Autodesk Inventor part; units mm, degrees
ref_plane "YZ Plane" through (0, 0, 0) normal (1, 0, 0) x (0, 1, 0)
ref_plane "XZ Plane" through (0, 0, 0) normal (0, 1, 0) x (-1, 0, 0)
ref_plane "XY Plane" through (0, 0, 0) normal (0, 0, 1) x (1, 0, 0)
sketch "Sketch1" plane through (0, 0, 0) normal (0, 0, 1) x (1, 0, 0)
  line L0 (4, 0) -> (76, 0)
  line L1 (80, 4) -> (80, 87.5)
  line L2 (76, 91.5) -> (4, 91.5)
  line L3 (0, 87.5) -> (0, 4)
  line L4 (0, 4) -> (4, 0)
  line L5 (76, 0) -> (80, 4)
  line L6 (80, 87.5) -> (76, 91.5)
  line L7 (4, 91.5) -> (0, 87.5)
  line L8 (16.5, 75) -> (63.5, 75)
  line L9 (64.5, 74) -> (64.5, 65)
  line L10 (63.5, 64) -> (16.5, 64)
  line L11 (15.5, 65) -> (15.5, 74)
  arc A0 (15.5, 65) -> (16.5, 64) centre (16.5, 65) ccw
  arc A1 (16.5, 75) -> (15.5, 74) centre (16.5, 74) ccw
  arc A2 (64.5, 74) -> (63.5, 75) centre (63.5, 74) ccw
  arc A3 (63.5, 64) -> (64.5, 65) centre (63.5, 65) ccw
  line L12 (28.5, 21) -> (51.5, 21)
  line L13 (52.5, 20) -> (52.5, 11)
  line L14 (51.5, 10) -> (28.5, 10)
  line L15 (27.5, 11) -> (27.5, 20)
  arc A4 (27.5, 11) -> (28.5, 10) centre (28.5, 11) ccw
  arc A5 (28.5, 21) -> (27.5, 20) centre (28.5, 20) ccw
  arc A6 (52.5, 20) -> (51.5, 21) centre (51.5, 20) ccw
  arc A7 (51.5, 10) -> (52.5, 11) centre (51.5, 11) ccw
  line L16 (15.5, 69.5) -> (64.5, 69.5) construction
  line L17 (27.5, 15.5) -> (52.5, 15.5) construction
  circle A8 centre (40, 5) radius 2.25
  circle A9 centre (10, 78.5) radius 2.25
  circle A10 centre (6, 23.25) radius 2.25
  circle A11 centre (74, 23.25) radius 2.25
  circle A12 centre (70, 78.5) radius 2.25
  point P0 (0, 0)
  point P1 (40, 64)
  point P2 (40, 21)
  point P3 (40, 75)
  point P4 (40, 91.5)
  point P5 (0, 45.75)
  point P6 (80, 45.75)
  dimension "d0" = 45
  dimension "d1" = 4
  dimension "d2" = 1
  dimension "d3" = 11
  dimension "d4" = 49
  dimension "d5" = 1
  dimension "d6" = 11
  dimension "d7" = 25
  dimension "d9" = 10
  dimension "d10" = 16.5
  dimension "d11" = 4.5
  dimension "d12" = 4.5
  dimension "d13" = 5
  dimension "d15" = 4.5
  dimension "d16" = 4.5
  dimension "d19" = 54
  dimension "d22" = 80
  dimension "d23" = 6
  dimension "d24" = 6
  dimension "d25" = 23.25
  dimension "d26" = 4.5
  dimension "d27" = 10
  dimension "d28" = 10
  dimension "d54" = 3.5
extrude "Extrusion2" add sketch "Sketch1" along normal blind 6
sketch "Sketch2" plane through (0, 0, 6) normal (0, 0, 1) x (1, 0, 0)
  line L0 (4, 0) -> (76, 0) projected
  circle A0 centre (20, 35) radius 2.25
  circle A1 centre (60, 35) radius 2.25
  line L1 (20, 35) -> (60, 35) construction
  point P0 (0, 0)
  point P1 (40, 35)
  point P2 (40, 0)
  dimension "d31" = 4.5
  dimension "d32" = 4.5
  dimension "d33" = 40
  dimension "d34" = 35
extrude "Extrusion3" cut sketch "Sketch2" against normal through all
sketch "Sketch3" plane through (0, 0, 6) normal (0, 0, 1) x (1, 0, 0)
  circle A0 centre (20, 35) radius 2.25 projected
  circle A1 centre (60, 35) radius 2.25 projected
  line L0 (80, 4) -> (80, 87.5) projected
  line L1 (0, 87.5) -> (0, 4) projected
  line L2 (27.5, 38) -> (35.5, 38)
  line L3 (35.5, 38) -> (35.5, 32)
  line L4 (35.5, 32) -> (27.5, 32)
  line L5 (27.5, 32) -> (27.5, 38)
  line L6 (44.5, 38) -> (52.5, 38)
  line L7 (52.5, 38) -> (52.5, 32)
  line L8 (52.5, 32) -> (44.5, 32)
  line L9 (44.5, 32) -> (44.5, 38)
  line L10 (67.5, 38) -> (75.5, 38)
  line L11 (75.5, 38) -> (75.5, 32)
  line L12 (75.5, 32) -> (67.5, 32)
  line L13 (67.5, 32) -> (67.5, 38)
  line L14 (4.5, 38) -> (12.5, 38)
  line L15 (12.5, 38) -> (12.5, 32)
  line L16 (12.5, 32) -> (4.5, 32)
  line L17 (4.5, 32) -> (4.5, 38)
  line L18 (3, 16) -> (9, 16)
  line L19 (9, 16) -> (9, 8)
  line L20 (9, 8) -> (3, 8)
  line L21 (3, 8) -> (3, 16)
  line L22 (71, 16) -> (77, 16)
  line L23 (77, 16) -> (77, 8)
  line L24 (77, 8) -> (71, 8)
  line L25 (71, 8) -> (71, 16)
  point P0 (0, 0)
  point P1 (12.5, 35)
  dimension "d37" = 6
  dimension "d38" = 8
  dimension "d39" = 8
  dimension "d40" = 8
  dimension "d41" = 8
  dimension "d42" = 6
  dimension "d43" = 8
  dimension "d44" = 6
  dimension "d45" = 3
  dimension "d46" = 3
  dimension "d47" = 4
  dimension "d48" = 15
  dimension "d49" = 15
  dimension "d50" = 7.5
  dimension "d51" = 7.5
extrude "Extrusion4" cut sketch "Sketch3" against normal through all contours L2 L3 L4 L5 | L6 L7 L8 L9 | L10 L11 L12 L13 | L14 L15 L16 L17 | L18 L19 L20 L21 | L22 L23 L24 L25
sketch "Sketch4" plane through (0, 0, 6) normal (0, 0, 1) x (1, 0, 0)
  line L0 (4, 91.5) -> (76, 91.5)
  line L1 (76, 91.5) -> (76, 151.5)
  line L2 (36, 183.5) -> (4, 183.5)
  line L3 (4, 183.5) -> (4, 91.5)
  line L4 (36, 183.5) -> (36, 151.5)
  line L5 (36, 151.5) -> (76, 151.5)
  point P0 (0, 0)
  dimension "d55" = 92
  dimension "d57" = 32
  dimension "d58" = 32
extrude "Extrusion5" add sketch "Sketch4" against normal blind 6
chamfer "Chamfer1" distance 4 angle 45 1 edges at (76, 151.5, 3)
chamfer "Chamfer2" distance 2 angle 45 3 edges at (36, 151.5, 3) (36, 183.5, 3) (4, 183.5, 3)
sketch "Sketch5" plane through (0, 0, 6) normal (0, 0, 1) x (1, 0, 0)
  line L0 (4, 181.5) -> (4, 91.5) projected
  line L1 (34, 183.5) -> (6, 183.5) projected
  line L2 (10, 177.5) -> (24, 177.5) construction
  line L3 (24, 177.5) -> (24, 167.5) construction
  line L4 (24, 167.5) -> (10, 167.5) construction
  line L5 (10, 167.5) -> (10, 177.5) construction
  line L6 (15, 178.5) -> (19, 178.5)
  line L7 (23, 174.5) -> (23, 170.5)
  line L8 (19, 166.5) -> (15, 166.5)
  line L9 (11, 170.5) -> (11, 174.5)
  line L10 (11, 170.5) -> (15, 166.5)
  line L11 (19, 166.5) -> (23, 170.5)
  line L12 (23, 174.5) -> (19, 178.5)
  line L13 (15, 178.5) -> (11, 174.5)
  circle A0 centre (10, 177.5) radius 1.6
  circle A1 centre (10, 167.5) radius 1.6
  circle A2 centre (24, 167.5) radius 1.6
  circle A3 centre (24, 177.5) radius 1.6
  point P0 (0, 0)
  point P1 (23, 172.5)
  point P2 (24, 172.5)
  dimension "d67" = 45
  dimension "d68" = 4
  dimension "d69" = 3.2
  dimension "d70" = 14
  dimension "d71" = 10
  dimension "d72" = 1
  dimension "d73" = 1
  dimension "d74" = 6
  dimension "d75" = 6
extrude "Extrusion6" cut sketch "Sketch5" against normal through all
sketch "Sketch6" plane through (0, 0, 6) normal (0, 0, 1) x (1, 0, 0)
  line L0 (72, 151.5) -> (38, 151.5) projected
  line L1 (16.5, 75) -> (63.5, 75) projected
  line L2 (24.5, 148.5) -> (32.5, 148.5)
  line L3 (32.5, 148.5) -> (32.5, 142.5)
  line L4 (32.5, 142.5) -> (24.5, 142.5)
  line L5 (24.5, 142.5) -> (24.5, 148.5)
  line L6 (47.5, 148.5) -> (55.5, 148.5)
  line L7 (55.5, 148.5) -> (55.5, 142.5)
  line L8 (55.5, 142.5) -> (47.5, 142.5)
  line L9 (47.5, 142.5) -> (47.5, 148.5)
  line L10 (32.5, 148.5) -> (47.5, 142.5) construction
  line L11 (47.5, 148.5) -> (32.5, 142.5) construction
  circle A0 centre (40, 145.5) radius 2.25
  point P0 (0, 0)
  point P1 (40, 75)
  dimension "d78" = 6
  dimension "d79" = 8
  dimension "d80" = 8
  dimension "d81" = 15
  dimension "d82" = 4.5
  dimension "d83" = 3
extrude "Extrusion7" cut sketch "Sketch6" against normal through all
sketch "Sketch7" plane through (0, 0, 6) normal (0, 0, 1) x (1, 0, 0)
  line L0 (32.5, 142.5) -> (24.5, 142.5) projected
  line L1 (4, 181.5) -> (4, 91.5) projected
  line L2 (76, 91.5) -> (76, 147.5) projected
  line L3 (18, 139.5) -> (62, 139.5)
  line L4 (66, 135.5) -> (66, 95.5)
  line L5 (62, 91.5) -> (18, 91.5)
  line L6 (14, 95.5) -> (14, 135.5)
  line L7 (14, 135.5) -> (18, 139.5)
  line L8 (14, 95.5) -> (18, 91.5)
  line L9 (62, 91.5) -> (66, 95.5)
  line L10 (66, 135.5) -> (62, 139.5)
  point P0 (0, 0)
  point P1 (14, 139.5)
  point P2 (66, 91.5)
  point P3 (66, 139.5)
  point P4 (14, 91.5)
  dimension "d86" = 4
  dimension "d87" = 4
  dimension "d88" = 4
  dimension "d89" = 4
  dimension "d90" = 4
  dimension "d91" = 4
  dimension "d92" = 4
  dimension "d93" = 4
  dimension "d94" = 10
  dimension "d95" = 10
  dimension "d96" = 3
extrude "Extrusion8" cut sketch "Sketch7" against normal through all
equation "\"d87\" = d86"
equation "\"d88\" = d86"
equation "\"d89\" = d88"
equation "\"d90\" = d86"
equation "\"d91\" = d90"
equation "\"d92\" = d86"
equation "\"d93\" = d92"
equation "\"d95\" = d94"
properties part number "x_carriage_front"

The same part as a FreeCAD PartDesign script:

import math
import FreeCAD as App
import Part
import Sketcher
from FreeCAD import Vector
Q = App.Units.Quantity


def edges_at(feature, points):
    """Names of the edges that pass closest to the given points."""
    edges = feature.Shape.Edges
    near = lambda p: min(range(len(edges)), key=lambda i: edges[i].distToShape(Part.Vertex(*p))[0])
    return sorted({f"Edge{near(p) + 1}" for p in points})


def add_polygon(sketch, points):
    """Adds a closed chain of lines whose ends are joined by coincident constraints."""
    first, n = sketch.GeometryCount, len(points)
    for a, b in zip(points, points[1:] + points[:1]):
        sketch.addGeometry(Part.LineSegment(App.Vector(*a, 0), App.Vector(*b, 0)), False)
    for i in range(n):
        sketch.addConstraint(Sketcher.Constraint("Coincident", first + i, 2, first + (i + 1) % n, 1))

doc = App.newDocument("Part")
params = doc.addObject("Spreadsheet::Sheet", "Params")
for row, (alias, value) in enumerate([
    ("sketch1_radius", "1 mm"),
    ("sketch1_diameter", "4.5 mm"),
    ("sketch1_width", "23 mm"),
    ("pad1_length", "6 mm"),
    ("sketch2_diameter", "4.5 mm"),
    ("sketch3_width", "8 mm"),
    ("sketch3_width2", "6 mm"),
    ("sketch4_width", "32 mm"),
    ("sketch4_height", "92 mm"),
    ("sketch4_width2", "72 mm"),
    ("pad2_length", "6 mm"),
    ("chamfer_size", "4 mm"),
    ("chamfer2_size", "2 mm"),
    ("sketch5_diameter", "3.2 mm"),
    ("sketch5_width", "4 mm"),
    ("sketch6_diameter", "4.5 mm"),
    ("sketch6_width", "8 mm"),
    ("sketch6_height", "6 mm"),
    ("sketch7_width", "44 mm"),
    ("sketch7_height", "40 mm"),
], start=1):
    params.set(f"A{row}", alias)
    params.set(f"B{row}", "=" + value)
    params.setAlias(f"B{row}", alias)

body = doc.addObject("PartDesign::Body", "Body")

# Sketch on XY plane
sketch1 = doc.addObject("Sketcher::SketchObject", "Sketch")
body.addObject(sketch1)
sketch1.AttachmentSupport = (doc.XY_Plane, [""])
sketch1.MapMode = "FlatFace"
add_polygon(sketch1, [(0, 4), (4, 0), (76, 0), (80, 4), (80, 87.5), (76, 91.5), (4, 91.5), (0, 87.5)])  # lines 0-7
sketch1.addGeometry(Part.Circle(Vector(6, 23.2, 0), Vector(0, 0, 1), 2.2), False)  # 8
sketch1.addGeometry(Part.Circle(Vector(40, 5, 0), Vector(0, 0, 1), 2.2), False)  # 9
sketch1.addGeometry(Part.ArcOfCircle(Part.Circle(Vector(28.5, 20, 0), Vector(0, 0, 1), 1), math.radians(90), math.radians(180)), False)  # 10
sketch1.addGeometry(Part.LineSegment(Vector(28.5, 21, 0), Vector(51.5, 21, 0)), False)  # 11
sketch1.addGeometry(Part.ArcOfCircle(Part.Circle(Vector(51.5, 20, 0), Vector(0, 0, 1), 1), math.radians(0), math.radians(90)), False)  # 12
sketch1.addGeometry(Part.LineSegment(Vector(52.5, 20, 0), Vector(52.5, 11, 0)), False)  # 13
sketch1.addGeometry(Part.ArcOfCircle(Part.Circle(Vector(51.5, 11, 0), Vector(0, 0, 1), 1), math.radians(-90), math.radians(0)), False)  # 14
sketch1.addGeometry(Part.LineSegment(Vector(51.5, 10, 0), Vector(28.5, 10, 0)), False)  # 15
sketch1.addGeometry(Part.ArcOfCircle(Part.Circle(Vector(28.5, 11, 0), Vector(0, 0, 1), 1), math.radians(180), math.radians(270)), False)  # 16
sketch1.addGeometry(Part.LineSegment(Vector(27.5, 11, 0), Vector(27.5, 20, 0)), False)  # 17
sketch1.addGeometry(Part.Circle(Vector(74, 23.2, 0), Vector(0, 0, 1), 2.2), False)  # 18
sketch1.addGeometry(Part.Circle(Vector(10, 78.5, 0), Vector(0, 0, 1), 2.2), False)  # 19
sketch1.addGeometry(Part.ArcOfCircle(Part.Circle(Vector(16.5, 74, 0), Vector(0, 0, 1), 1), math.radians(90), math.radians(180)), False)  # 20
sketch1.addGeometry(Part.LineSegment(Vector(16.5, 75, 0), Vector(63.5, 75, 0)), False)  # 21
sketch1.addGeometry(Part.ArcOfCircle(Part.Circle(Vector(63.5, 74, 0), Vector(0, 0, 1), 1), math.radians(0), math.radians(90)), False)  # 22
sketch1.addGeometry(Part.LineSegment(Vector(64.5, 74, 0), Vector(64.5, 65, 0)), False)  # 23
sketch1.addGeometry(Part.ArcOfCircle(Part.Circle(Vector(63.5, 65, 0), Vector(0, 0, 1), 1), math.radians(-90), math.radians(0)), False)  # 24
sketch1.addGeometry(Part.LineSegment(Vector(63.5, 64, 0), Vector(16.5, 64, 0)), False)  # 25
sketch1.addGeometry(Part.ArcOfCircle(Part.Circle(Vector(16.5, 65, 0), Vector(0, 0, 1), 1), math.radians(180), math.radians(270)), False)  # 26
sketch1.addGeometry(Part.LineSegment(Vector(15.5, 65, 0), Vector(15.5, 74, 0)), False)  # 27
sketch1.addGeometry(Part.Circle(Vector(70, 78.5, 0), Vector(0, 0, 1), 2.2), False)  # 28
sketch1.addConstraint([
    Sketcher.Constraint("Tangent", 10, 1, 11, 1),
    Sketcher.Constraint("Tangent", 11, 2, 12, 2),
    Sketcher.Constraint("Tangent", 12, 1, 13, 1),
    Sketcher.Constraint("Tangent", 13, 2, 14, 2),
    Sketcher.Constraint("Tangent", 14, 1, 15, 1),
    Sketcher.Constraint("Tangent", 15, 2, 16, 2),
    Sketcher.Constraint("Tangent", 16, 1, 17, 1),
    Sketcher.Constraint("Tangent", 17, 2, 10, 2),
    Sketcher.Constraint("Tangent", 20, 1, 21, 1),
    Sketcher.Constraint("Tangent", 21, 2, 22, 2),
    Sketcher.Constraint("Tangent", 22, 1, 23, 1),
    Sketcher.Constraint("Tangent", 23, 2, 24, 2),
    Sketcher.Constraint("Tangent", 24, 1, 25, 1),
    Sketcher.Constraint("Tangent", 25, 2, 26, 2),
    Sketcher.Constraint("Tangent", 26, 1, 27, 1),
    Sketcher.Constraint("Tangent", 27, 2, 20, 2),
    Sketcher.Constraint("Horizontal", 1),
    Sketcher.Constraint("Vertical", 3),
    Sketcher.Constraint("Horizontal", 5),
    Sketcher.Constraint("Vertical", 7),
    Sketcher.Constraint("Horizontal", 11),
    Sketcher.Constraint("Vertical", 13),
    Sketcher.Constraint("Horizontal", 15),
    Sketcher.Constraint("Vertical", 17),
    Sketcher.Constraint("Horizontal", 21),
    Sketcher.Constraint("Vertical", 23),
    Sketcher.Constraint("Horizontal", 25),
    Sketcher.Constraint("Vertical", 27),
    Sketcher.Constraint("Equal", 8, 9),
    Sketcher.Constraint("Equal", 10, 12),
    Sketcher.Constraint("Equal", 12, 14),
    Sketcher.Constraint("Equal", 14, 16),
    Sketcher.Constraint("Equal", 9, 18),
    Sketcher.Constraint("Equal", 18, 19),
    Sketcher.Constraint("Equal", 16, 20),
    Sketcher.Constraint("Equal", 20, 22),
    Sketcher.Constraint("Equal", 22, 24),
    Sketcher.Constraint("Equal", 24, 26),
    Sketcher.Constraint("Equal", 19, 28),
    Sketcher.Constraint("PointOnObject", 0, 2, -1),
    Sketcher.Constraint("PointOnObject", 6, 2, -2),
    Sketcher.Constraint("Perpendicular", 0, 2),
    Sketcher.Constraint("Perpendicular", 2, 4),
    Sketcher.Constraint("Perpendicular", 4, 6),
    Sketcher.Constraint("Horizontal", 8, 3, 18, 3),
    Sketcher.Constraint("Horizontal", 19, 3, 28, 3),
    Sketcher.Constraint("Horizontal", 3, 2, 6, 2),
    Sketcher.Constraint("Horizontal", 2, 2, 7, 2),
    Sketcher.Constraint("Vertical", 1, 2, 4, 2),
    Sketcher.Constraint("Vertical", 0, 2, 5, 2),
    Sketcher.Constraint("Equal", 17, 23),
    Sketcher.Constraint("Radius", 10, Q("1 mm")),
    Sketcher.Constraint("Diameter", 8, Q("4.5 mm")),
    Sketcher.Constraint("DistanceX", -1, 1, 8, 3, Q("6 mm")),
    Sketcher.Constraint("DistanceY", -1, 1, 9, 3, Q("5 mm")),
    Sketcher.Constraint("DistanceY", -1, 1, 14, 3, Q("11 mm")),
    Sketcher.Constraint("DistanceX", -1, 1, 19, 3, Q("10 mm")),
    Sketcher.Constraint("DistanceX", -1, 1, 0, 2, Q("4 mm")),
    Sketcher.Constraint("DistanceX", -1, 1, 2, 2, Q("80 mm")),
    Sketcher.Constraint("DistanceY", 10, 3, 20, 3, Q("54 mm")),
    Sketcher.Constraint("DistanceY", 12, 3, 24, 3, Q("45 mm")),
    Sketcher.Constraint("DistanceX", 28, 3, 18, 3, Q("4 mm")),
    Sketcher.Constraint("DistanceX", 18, 3, 2, 2, Q("6 mm")),
    Sketcher.Constraint("DistanceX", -1, 1, 20, 3, Q("16.5 mm")),
    Sketcher.Constraint("DistanceY", 20, 3, 19, 3, Q("4.5 mm")),
    Sketcher.Constraint("DistanceX", 22, 3, 3, 2, Q("16.5 mm")),
    Sketcher.Constraint("DistanceY", 20, 1, 5, 2, Q("16.5 mm")),
    Sketcher.Constraint("DistanceX", 11, 1, 11, 2, Q("23 mm")),
    Sketcher.Constraint("DistanceY", -1, 1, 8, 3, Q("23.25 mm")),
    Sketcher.Constraint("DistanceX", -1, 1, 9, 3, Q("40 mm")),
    Sketcher.Constraint("DistanceX", 20, 3, 10, 3, Q("12 mm")),
])
sketch1.setExpression("Constraints[59]", "Params.sketch1_radius")
sketch1.setExpression("Constraints[60]", "Params.sketch1_diameter")
sketch1.setExpression("Constraints[75]", "Params.sketch1_width")
pad1 = doc.addObject("PartDesign::Pad", "Pad")
body.addObject(pad1)
pad1.Profile = sketch1
pad1.setExpression("Length", "Params.pad1_length")

# Sketch on XY plane
sketch2 = doc.addObject("Sketcher::SketchObject", "Sketch001")
body.addObject(sketch2)
sketch2.AttachmentSupport = (doc.XY_Plane, [""])
sketch2.MapMode = "FlatFace"
sketch2.AttachmentOffset = App.Placement(Vector(0, 0, 6), App.Rotation())
sketch2.addGeometry([
    Part.Circle(Vector(20, 35, 0), Vector(0, 0, 1), 2.2),
    Part.Circle(Vector(60, 35, 0), Vector(0, 0, 1), 2.2),
], False)
sketch2.addConstraint([
    Sketcher.Constraint("Equal", 0, 1),
    Sketcher.Constraint("Horizontal", 0, 3, 1, 3),
    Sketcher.Constraint("Diameter", 0, Q("4.5 mm")),
    Sketcher.Constraint("DistanceY", -1, 1, 0, 3, Q("35 mm")),
    Sketcher.Constraint("DistanceX", 0, 3, 1, 3, Q("40 mm")),
    Sketcher.Constraint("DistanceX", -1, 1, 0, 3, Q("20 mm")),
])
sketch2.setExpression("Constraints[2]", "Params.sketch2_diameter")
pocket1 = doc.addObject("PartDesign::Pocket", "Pocket")
body.addObject(pocket1)
pocket1.Profile = sketch2
pocket1.Type = "ThroughAll"

# Sketch on XY plane
sketch3 = doc.addObject("Sketcher::SketchObject", "Sketch002")
body.addObject(sketch3)
sketch3.AttachmentSupport = (doc.XY_Plane, [""])
sketch3.MapMode = "FlatFace"
sketch3.AttachmentOffset = App.Placement(Vector(0, 0, 6), App.Rotation())
add_polygon(sketch3, [(36, 38), (28, 38), (28, 32), (36, 32)])  # lines 0-3
add_polygon(sketch3, [(52, 38), (44, 38), (44, 32), (52, 32)])  # lines 4-7
add_polygon(sketch3, [(76, 38), (68, 38), (68, 32), (76, 32)])  # lines 8-11
add_polygon(sketch3, [(12, 38), (4, 38), (4, 32), (12, 32)])  # lines 12-15
add_polygon(sketch3, [(9, 16), (3, 16), (3, 8), (9, 8)])  # lines 16-19
add_polygon(sketch3, [(77, 16), (71, 16), (71, 8), (77, 8)])  # lines 20-23
sketch3.addConstraint([
    Sketcher.Constraint("Horizontal", 0),
    Sketcher.Constraint("Vertical", 1),
    Sketcher.Constraint("Horizontal", 2),
    Sketcher.Constraint("Vertical", 3),
    Sketcher.Constraint("Horizontal", 4),
    Sketcher.Constraint("Vertical", 5),
    Sketcher.Constraint("Horizontal", 6),
    Sketcher.Constraint("Vertical", 7),
    Sketcher.Constraint("Horizontal", 8),
    Sketcher.Constraint("Vertical", 9),
    Sketcher.Constraint("Horizontal", 10),
    Sketcher.Constraint("Vertical", 11),
    Sketcher.Constraint("Horizontal", 12),
    Sketcher.Constraint("Vertical", 13),
    Sketcher.Constraint("Horizontal", 14),
    Sketcher.Constraint("Vertical", 15),
    Sketcher.Constraint("Horizontal", 16),
    Sketcher.Constraint("Vertical", 17),
    Sketcher.Constraint("Horizontal", 18),
    Sketcher.Constraint("Vertical", 19),
    Sketcher.Constraint("Horizontal", 20),
    Sketcher.Constraint("Vertical", 21),
    Sketcher.Constraint("Horizontal", 22),
    Sketcher.Constraint("Vertical", 23),
    Sketcher.Constraint("Horizontal", 3, 2, 4, 2),
    Sketcher.Constraint("Horizontal", 2, 2, 5, 2),
    Sketcher.Constraint("Horizontal", 7, 2, 8, 2),
    Sketcher.Constraint("Horizontal", 6, 2, 9, 2),
    Sketcher.Constraint("Horizontal", 11, 2, 12, 2),
    Sketcher.Constraint("Horizontal", 10, 2, 13, 2),
    Sketcher.Constraint("Horizontal", 19, 2, 20, 2),
    Sketcher.Constraint("Horizontal", 18, 2, 21, 2),
    Sketcher.Constraint("Equal", 2, 4),
    Sketcher.Constraint("Equal", 6, 8),
    Sketcher.Constraint("Equal", 10, 12),
    Sketcher.Constraint("Equal", 18, 20),
    Sketcher.Constraint("Equal", 22, 1),
    Sketcher.Constraint("Equal", 14, 17),
    Sketcher.Constraint("DistanceX", 0, 2, 0, 1, Q("8 mm")),
    Sketcher.Constraint("DistanceX", 16, 2, 16, 1, Q("6 mm")),
    Sketcher.Constraint("DistanceX", -1, 1, 16, 2, Q("3 mm")),
    Sketcher.Constraint("DistanceY", -1, 1, 17, 2, Q("8 mm")),
    Sketcher.Constraint("DistanceX", 7, 2, 8, 2, Q("15 mm")),
    Sketcher.Constraint("DistanceX", 14, 2, 1, 2, Q("15 mm")),
    Sketcher.Constraint("DistanceY", -1, 1, 0, 2, Q("38 mm")),
    Sketcher.Constraint("DistanceX", -1, 1, 20, 2, Q("71 mm")),
    Sketcher.Constraint("DistanceX", 3, 2, 4, 2, Q("9 mm")),
    Sketcher.Constraint("DistanceX", -1, 1, 0, 2, Q("27.5 mm")),
])
sketch3.setExpression("Constraints[62]", "Params.sketch3_width")
sketch3.setExpression("Constraints[63]", "Params.sketch3_width2")
pocket2 = doc.addObject("PartDesign::Pocket", "Pocket001")
body.addObject(pocket2)
pocket2.Profile = sketch3
pocket2.Type = "ThroughAll"

# Sketch on XY plane
sketch4 = doc.addObject("Sketcher::SketchObject", "Sketch003")
body.addObject(sketch4)
sketch4.AttachmentSupport = (doc.XY_Plane, [""])
sketch4.MapMode = "FlatFace"
sketch4.AttachmentOffset = App.Placement(Vector(0, 0, 6), App.Rotation())
add_polygon(sketch4, [(4, 184), (4, 92), (76, 92), (76, 152), (36, 152), (36, 184)])  # lines 0-5
sketch4.addConstraint([
    Sketcher.Constraint("Vertical", 0),
    Sketcher.Constraint("Horizontal", 1),
    Sketcher.Constraint("Vertical", 2),
    Sketcher.Constraint("Horizontal", 3),
    Sketcher.Constraint("Vertical", 4),
    Sketcher.Constraint("Horizontal", 5),
    Sketcher.Constraint("Equal", 5, 4),
    Sketcher.Constraint("DistanceX", 5, 2, 5, 1, Q("32 mm")),
    Sketcher.Constraint("DistanceY", 0, 2, 0, 1, Q("92 mm")),
    Sketcher.Constraint("DistanceX", 1, 1, 1, 2, Q("72 mm")),
    Sketcher.Constraint("DistanceX", -1, 1, 0, 2, Q("4 mm")),
    Sketcher.Constraint("DistanceY", -1, 1, 0, 2, Q("91.5 mm")),
])
sketch4.setExpression("Constraints[13]", "Params.sketch4_width")
sketch4.setExpression("Constraints[14]", "Params.sketch4_height")
sketch4.setExpression("Constraints[15]", "Params.sketch4_width2")
pad2 = doc.addObject("PartDesign::Pad", "Pad001")
body.addObject(pad2)
pad2.Profile = sketch4
pad2.setExpression("Length", "Params.pad2_length")
pad2.Reversed = True
doc.recompute()

chamfer = doc.addObject("PartDesign::Chamfer", "Chamfer")
body.addObject(chamfer)
chamfer.Base = (pad2, edges_at(pad2, [(76, 151.5, 3)]))
chamfer.setExpression("Size", "Params.chamfer_size")
doc.recompute()

chamfer2 = doc.addObject("PartDesign::Chamfer", "Chamfer001")
body.addObject(chamfer2)
chamfer2.Base = (chamfer, edges_at(chamfer, [(36, 151.5, 3), (36, 183.5, 3), (4, 183.5, 3)]))
chamfer2.setExpression("Size", "Params.chamfer2_size")

# Sketch on XY plane
sketch5 = doc.addObject("Sketcher::SketchObject", "Sketch004")
body.addObject(sketch5)
sketch5.AttachmentSupport = (doc.XY_Plane, [""])
sketch5.MapMode = "FlatFace"
sketch5.AttachmentOffset = App.Placement(Vector(0, 0, 6), App.Rotation())
add_polygon(sketch5, [(19, 178.5), (15, 178.5), (11, 174.5), (11, 170.5), (15, 166.5), (19, 166.5), (23, 170.5), (23, 174.5)])  # lines 0-7
sketch5.addGeometry(Part.Circle(Vector(10, 177.5, 0), Vector(0, 0, 1), 1.6), False)  # 8
sketch5.addGeometry(Part.Circle(Vector(10, 167.5, 0), Vector(0, 0, 1), 1.6), False)  # 9
sketch5.addGeometry(Part.Circle(Vector(24, 167.5, 0), Vector(0, 0, 1), 1.6), False)  # 10
sketch5.addGeometry(Part.Circle(Vector(24, 177.5, 0), Vector(0, 0, 1), 1.6), False)  # 11
sketch5.addConstraint([
    Sketcher.Constraint("Horizontal", 0),
    Sketcher.Constraint("Vertical", 2),
    Sketcher.Constraint("Horizontal", 4),
    Sketcher.Constraint("Vertical", 6),
    Sketcher.Constraint("Equal", 8, 9),
    Sketcher.Constraint("Equal", 9, 10),
    Sketcher.Constraint("Equal", 10, 11),
    Sketcher.Constraint("Perpendicular", 1, 3),
    Sketcher.Constraint("Perpendicular", 3, 5),
    Sketcher.Constraint("Perpendicular", 5, 7),
    Sketcher.Constraint("Horizontal", 9, 3, 10, 3),
    Sketcher.Constraint("Horizontal", 8, 3, 11, 3),
    Sketcher.Constraint("Horizontal", 2, 2, 5, 2),
    Sketcher.Constraint("Horizontal", 1, 2, 6, 2),
    Sketcher.Constraint("Vertical", 8, 3, 9, 3),
    Sketcher.Constraint("Vertical", 10, 3, 11, 3),
    Sketcher.Constraint("Vertical", 0, 2, 3, 2),
    Sketcher.Constraint("Vertical", 4, 2, 7, 2),
    Sketcher.Constraint("Equal", 4, 2),
    Sketcher.Constraint("Diameter", 8, Q("3.2 mm")),
    Sketcher.Constraint("DistanceX", 0, 2, 0, 1, Q("4 mm")),
    Sketcher.Constraint("DistanceX", -1, 1, 8, 3, Q("10 mm")),
    Sketcher.Constraint("DistanceY", 9, 3, 8, 3, Q("10 mm")),
    Sketcher.Constraint("DistanceX", 9, 3, 10, 3, Q("14 mm")),
    Sketcher.Constraint("DistanceY", 8, 3, 0, 2, Q("1 mm")),
    Sketcher.Constraint("DistanceX", 8, 3, 1, 2, Q("1 mm")),
    Sketcher.Constraint("DistanceX", 1, 2, 0, 2, Q("4 mm")),
    Sketcher.Constraint("DistanceY", -1, 1, 8, 3, Q("177.5 mm")),
])
sketch5.setExpression("Constraints[27]", "Params.sketch5_diameter")
sketch5.setExpression("Constraints[28]", "Params.sketch5_width")
pocket3 = doc.addObject("PartDesign::Pocket", "Pocket002")
body.addObject(pocket3)
pocket3.Profile = sketch5
pocket3.Type = "ThroughAll"

# Sketch on XY plane
sketch6 = doc.addObject("Sketcher::SketchObject", "Sketch005")
body.addObject(sketch6)
sketch6.AttachmentSupport = (doc.XY_Plane, [""])
sketch6.MapMode = "FlatFace"
sketch6.AttachmentOffset = App.Placement(Vector(0, 0, 6), App.Rotation())
add_polygon(sketch6, [(32.5, 148.5), (24.5, 148.5), (24.5, 142.5), (32.5, 142.5)])  # lines 0-3
add_polygon(sketch6, [(55.5, 148.5), (47.5, 148.5), (47.5, 142.5), (55.5, 142.5)])  # lines 4-7
sketch6.addGeometry(Part.Circle(Vector(40, 145.5, 0), Vector(0, 0, 1), 2.2), False)  # 8
sketch6.addConstraint([
    Sketcher.Constraint("Horizontal", 0),
    Sketcher.Constraint("Vertical", 1),
    Sketcher.Constraint("Horizontal", 2),
    Sketcher.Constraint("Vertical", 3),
    Sketcher.Constraint("Horizontal", 4),
    Sketcher.Constraint("Vertical", 5),
    Sketcher.Constraint("Horizontal", 6),
    Sketcher.Constraint("Vertical", 7),
    Sketcher.Constraint("Horizontal", 3, 2, 4, 2),
    Sketcher.Constraint("Horizontal", 2, 2, 5, 2),
    Sketcher.Constraint("Equal", 2, 4),
    Sketcher.Constraint("Diameter", 8, Q("4.5 mm")),
    Sketcher.Constraint("DistanceX", 0, 2, 0, 1, Q("8 mm")),
    Sketcher.Constraint("DistanceY", 1, 2, 1, 1, Q("6 mm")),
    Sketcher.Constraint("DistanceY", 8, 3, 0, 2, Q("3 mm")),
    Sketcher.Constraint("DistanceX", 3, 2, 4, 2, Q("15 mm")),
    Sketcher.Constraint("DistanceX", -1, 1, 8, 3, Q("40 mm")),
    Sketcher.Constraint("DistanceY", -1, 1, 8, 3, Q("145.5 mm")),
    Sketcher.Constraint("DistanceX", -1, 1, 0, 2, Q("24.5 mm")),
])
sketch6.setExpression("Constraints[19]", "Params.sketch6_diameter")
sketch6.setExpression("Constraints[20]", "Params.sketch6_width")
sketch6.setExpression("Constraints[21]", "Params.sketch6_height")
pocket4 = doc.addObject("PartDesign::Pocket", "Pocket003")
body.addObject(pocket4)
pocket4.Profile = sketch6
pocket4.Type = "ThroughAll"

# Sketch on XY plane
sketch7 = doc.addObject("Sketcher::SketchObject", "Sketch006")
body.addObject(sketch7)
sketch7.AttachmentSupport = (doc.XY_Plane, [""])
sketch7.MapMode = "FlatFace"
sketch7.AttachmentOffset = App.Placement(Vector(0, 0, 6), App.Rotation())
add_polygon(sketch7, [(62, 140), (18, 140), (14, 136), (14, 96), (18, 92), (62, 92), (66, 96), (66, 136)])  # lines 0-7
sketch7.addConstraint([
    Sketcher.Constraint("Horizontal", 0),
    Sketcher.Constraint("Vertical", 2),
    Sketcher.Constraint("Horizontal", 4),
    Sketcher.Constraint("Vertical", 6),
    Sketcher.Constraint("Perpendicular", 1, 3),
    Sketcher.Constraint("Perpendicular", 3, 5),
    Sketcher.Constraint("Perpendicular", 5, 7),
    Sketcher.Constraint("Horizontal", 2, 2, 5, 2),
    Sketcher.Constraint("Horizontal", 1, 2, 6, 2),
    Sketcher.Constraint("Vertical", 0, 2, 3, 2),
    Sketcher.Constraint("Vertical", 4, 2, 7, 2),
    Sketcher.Constraint("DistanceX", 1, 2, 0, 2, Q("4 mm")),
    Sketcher.Constraint("DistanceX", 0, 2, 0, 1, Q("44 mm")),
    Sketcher.Constraint("DistanceY", 2, 2, 2, 1, Q("40 mm")),
    Sketcher.Constraint("DistanceX", -1, 1, 0, 2, Q("18 mm")),
    Sketcher.Constraint("DistanceY", -1, 1, 0, 2, Q("139.5 mm")),
])
sketch7.setExpression("Constraints[20]", "Params.sketch7_width")
sketch7.setExpression("Constraints[21]", "Params.sketch7_height")
pocket5 = doc.addObject("PartDesign::Pocket", "Pocket004")
body.addObject(pocket5)
pocket5.Profile = sketch7
pocket5.Type = "ThroughAll"

doc.recompute()
